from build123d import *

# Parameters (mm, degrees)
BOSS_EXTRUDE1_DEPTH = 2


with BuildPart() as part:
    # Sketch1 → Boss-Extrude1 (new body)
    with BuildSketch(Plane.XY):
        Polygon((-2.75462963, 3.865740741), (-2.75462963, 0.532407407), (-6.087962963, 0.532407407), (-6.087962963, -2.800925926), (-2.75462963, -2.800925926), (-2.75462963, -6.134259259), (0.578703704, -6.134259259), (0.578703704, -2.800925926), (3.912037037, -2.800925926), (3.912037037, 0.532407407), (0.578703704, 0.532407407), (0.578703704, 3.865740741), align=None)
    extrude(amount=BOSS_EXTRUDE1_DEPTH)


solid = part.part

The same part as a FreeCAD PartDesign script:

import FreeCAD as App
import Part
import Sketcher

V = App.Vector
Q = App.Units.Quantity


def add_polygon(sketch, points):
    """Adds a closed chain of lines whose ends are joined by coincident constraints."""
    first, n = sketch.GeometryCount, len(points)
    for a, b in zip(points, points[1:] + points[:1]):
        sketch.addGeometry(Part.LineSegment(App.Vector(*a, 0), App.Vector(*b, 0)), False)
    for i in range(n):
        sketch.addConstraint(Sketcher.Constraint("Coincident", first + i, 2, first + (i + 1) % n, 1))

doc = App.newDocument("Part")
params = doc.addObject("Spreadsheet::Sheet", "Params")
for row, (alias, value) in enumerate([
    ("pad1_length", "2 mm"),
], start=1):
    params.set(f"A{row}", alias)
    params.set(f"B{row}", "=" + value)
    params.setAlias(f"B{row}", alias)

body = doc.addObject("PartDesign::Body", "Body")

sketch1 = body.newObject("Sketcher::SketchObject", "Sketch")
sketch1.AttachmentSupport = (doc.getObject("XY_Plane"), [""])
sketch1.MapMode = "FlatFace"
add_polygon(sketch1, [(-2.8, 3.9), (-2.8, 0.5), (-6.1, 0.5), (-6.1, -2.8), (-2.8, -2.8), (-2.8, -6.1), (0.6, -6.1), (0.6, -2.8), (3.9, -2.8), (3.9, 0.5), (0.6, 0.5), (0.6, 3.9)])
sketch1.addConstraint(Sketcher.Constraint("Vertical", 0))
sketch1.addConstraint(Sketcher.Constraint("Horizontal", 1))
sketch1.addConstraint(Sketcher.Constraint("Vertical", 2))
sketch1.addConstraint(Sketcher.Constraint("Horizontal", 3))
sketch1.addConstraint(Sketcher.Constraint("Vertical", 4))
sketch1.addConstraint(Sketcher.Constraint("Horizontal", 5))
sketch1.addConstraint(Sketcher.Constraint("Vertical", 6))
sketch1.addConstraint(Sketcher.Constraint("Horizontal", 7))
sketch1.addConstraint(Sketcher.Constraint("Vertical", 8))
sketch1.addConstraint(Sketcher.Constraint("Horizontal", 9))
sketch1.addConstraint(Sketcher.Constraint("Vertical", 10))
sketch1.addConstraint(Sketcher.Constraint("Horizontal", 11))
sketch1.addConstraint(Sketcher.Constraint("Horizontal", 3, 2, 6, 2))
sketch1.addConstraint(Sketcher.Constraint("Horizontal", 1, 2, 8, 2))
sketch1.addConstraint(Sketcher.Constraint("Vertical", 0, 2, 3, 2))
sketch1.addConstraint(Sketcher.Constraint("Vertical", 6, 2, 9, 2))
sketch1.addConstraint(Sketcher.Constraint("Equal", 3, 5))
sketch1.addConstraint(Sketcher.Constraint("Equal", 5, 7))
sketch1.addConstraint(Sketcher.Constraint("Equal", 11, 0))
sketch1.addConstraint(Sketcher.Constraint("Equal", 0, 2))
sketch1.addConstraint(Sketcher.Constraint("Equal", 2, 4))
sketch1.addConstraint(Sketcher.Constraint("DistanceX", 1, 2, 1, 1, Q("3.333333 mm")))
sketch1.addConstraint(Sketcher.Constraint("DistanceX", 0, 2, -1, 1, Q("2.75463 mm")))
sketch1.addConstraint(Sketcher.Constraint("DistanceY", 4, 2, -1, 1, Q("6.134259 mm")))
pad1 = body.newObject("PartDesign::Pad", "Pad")
pad1.Profile = sketch1
pad1.setExpression("Length", "Params.pad1_length")

doc.recompute()
